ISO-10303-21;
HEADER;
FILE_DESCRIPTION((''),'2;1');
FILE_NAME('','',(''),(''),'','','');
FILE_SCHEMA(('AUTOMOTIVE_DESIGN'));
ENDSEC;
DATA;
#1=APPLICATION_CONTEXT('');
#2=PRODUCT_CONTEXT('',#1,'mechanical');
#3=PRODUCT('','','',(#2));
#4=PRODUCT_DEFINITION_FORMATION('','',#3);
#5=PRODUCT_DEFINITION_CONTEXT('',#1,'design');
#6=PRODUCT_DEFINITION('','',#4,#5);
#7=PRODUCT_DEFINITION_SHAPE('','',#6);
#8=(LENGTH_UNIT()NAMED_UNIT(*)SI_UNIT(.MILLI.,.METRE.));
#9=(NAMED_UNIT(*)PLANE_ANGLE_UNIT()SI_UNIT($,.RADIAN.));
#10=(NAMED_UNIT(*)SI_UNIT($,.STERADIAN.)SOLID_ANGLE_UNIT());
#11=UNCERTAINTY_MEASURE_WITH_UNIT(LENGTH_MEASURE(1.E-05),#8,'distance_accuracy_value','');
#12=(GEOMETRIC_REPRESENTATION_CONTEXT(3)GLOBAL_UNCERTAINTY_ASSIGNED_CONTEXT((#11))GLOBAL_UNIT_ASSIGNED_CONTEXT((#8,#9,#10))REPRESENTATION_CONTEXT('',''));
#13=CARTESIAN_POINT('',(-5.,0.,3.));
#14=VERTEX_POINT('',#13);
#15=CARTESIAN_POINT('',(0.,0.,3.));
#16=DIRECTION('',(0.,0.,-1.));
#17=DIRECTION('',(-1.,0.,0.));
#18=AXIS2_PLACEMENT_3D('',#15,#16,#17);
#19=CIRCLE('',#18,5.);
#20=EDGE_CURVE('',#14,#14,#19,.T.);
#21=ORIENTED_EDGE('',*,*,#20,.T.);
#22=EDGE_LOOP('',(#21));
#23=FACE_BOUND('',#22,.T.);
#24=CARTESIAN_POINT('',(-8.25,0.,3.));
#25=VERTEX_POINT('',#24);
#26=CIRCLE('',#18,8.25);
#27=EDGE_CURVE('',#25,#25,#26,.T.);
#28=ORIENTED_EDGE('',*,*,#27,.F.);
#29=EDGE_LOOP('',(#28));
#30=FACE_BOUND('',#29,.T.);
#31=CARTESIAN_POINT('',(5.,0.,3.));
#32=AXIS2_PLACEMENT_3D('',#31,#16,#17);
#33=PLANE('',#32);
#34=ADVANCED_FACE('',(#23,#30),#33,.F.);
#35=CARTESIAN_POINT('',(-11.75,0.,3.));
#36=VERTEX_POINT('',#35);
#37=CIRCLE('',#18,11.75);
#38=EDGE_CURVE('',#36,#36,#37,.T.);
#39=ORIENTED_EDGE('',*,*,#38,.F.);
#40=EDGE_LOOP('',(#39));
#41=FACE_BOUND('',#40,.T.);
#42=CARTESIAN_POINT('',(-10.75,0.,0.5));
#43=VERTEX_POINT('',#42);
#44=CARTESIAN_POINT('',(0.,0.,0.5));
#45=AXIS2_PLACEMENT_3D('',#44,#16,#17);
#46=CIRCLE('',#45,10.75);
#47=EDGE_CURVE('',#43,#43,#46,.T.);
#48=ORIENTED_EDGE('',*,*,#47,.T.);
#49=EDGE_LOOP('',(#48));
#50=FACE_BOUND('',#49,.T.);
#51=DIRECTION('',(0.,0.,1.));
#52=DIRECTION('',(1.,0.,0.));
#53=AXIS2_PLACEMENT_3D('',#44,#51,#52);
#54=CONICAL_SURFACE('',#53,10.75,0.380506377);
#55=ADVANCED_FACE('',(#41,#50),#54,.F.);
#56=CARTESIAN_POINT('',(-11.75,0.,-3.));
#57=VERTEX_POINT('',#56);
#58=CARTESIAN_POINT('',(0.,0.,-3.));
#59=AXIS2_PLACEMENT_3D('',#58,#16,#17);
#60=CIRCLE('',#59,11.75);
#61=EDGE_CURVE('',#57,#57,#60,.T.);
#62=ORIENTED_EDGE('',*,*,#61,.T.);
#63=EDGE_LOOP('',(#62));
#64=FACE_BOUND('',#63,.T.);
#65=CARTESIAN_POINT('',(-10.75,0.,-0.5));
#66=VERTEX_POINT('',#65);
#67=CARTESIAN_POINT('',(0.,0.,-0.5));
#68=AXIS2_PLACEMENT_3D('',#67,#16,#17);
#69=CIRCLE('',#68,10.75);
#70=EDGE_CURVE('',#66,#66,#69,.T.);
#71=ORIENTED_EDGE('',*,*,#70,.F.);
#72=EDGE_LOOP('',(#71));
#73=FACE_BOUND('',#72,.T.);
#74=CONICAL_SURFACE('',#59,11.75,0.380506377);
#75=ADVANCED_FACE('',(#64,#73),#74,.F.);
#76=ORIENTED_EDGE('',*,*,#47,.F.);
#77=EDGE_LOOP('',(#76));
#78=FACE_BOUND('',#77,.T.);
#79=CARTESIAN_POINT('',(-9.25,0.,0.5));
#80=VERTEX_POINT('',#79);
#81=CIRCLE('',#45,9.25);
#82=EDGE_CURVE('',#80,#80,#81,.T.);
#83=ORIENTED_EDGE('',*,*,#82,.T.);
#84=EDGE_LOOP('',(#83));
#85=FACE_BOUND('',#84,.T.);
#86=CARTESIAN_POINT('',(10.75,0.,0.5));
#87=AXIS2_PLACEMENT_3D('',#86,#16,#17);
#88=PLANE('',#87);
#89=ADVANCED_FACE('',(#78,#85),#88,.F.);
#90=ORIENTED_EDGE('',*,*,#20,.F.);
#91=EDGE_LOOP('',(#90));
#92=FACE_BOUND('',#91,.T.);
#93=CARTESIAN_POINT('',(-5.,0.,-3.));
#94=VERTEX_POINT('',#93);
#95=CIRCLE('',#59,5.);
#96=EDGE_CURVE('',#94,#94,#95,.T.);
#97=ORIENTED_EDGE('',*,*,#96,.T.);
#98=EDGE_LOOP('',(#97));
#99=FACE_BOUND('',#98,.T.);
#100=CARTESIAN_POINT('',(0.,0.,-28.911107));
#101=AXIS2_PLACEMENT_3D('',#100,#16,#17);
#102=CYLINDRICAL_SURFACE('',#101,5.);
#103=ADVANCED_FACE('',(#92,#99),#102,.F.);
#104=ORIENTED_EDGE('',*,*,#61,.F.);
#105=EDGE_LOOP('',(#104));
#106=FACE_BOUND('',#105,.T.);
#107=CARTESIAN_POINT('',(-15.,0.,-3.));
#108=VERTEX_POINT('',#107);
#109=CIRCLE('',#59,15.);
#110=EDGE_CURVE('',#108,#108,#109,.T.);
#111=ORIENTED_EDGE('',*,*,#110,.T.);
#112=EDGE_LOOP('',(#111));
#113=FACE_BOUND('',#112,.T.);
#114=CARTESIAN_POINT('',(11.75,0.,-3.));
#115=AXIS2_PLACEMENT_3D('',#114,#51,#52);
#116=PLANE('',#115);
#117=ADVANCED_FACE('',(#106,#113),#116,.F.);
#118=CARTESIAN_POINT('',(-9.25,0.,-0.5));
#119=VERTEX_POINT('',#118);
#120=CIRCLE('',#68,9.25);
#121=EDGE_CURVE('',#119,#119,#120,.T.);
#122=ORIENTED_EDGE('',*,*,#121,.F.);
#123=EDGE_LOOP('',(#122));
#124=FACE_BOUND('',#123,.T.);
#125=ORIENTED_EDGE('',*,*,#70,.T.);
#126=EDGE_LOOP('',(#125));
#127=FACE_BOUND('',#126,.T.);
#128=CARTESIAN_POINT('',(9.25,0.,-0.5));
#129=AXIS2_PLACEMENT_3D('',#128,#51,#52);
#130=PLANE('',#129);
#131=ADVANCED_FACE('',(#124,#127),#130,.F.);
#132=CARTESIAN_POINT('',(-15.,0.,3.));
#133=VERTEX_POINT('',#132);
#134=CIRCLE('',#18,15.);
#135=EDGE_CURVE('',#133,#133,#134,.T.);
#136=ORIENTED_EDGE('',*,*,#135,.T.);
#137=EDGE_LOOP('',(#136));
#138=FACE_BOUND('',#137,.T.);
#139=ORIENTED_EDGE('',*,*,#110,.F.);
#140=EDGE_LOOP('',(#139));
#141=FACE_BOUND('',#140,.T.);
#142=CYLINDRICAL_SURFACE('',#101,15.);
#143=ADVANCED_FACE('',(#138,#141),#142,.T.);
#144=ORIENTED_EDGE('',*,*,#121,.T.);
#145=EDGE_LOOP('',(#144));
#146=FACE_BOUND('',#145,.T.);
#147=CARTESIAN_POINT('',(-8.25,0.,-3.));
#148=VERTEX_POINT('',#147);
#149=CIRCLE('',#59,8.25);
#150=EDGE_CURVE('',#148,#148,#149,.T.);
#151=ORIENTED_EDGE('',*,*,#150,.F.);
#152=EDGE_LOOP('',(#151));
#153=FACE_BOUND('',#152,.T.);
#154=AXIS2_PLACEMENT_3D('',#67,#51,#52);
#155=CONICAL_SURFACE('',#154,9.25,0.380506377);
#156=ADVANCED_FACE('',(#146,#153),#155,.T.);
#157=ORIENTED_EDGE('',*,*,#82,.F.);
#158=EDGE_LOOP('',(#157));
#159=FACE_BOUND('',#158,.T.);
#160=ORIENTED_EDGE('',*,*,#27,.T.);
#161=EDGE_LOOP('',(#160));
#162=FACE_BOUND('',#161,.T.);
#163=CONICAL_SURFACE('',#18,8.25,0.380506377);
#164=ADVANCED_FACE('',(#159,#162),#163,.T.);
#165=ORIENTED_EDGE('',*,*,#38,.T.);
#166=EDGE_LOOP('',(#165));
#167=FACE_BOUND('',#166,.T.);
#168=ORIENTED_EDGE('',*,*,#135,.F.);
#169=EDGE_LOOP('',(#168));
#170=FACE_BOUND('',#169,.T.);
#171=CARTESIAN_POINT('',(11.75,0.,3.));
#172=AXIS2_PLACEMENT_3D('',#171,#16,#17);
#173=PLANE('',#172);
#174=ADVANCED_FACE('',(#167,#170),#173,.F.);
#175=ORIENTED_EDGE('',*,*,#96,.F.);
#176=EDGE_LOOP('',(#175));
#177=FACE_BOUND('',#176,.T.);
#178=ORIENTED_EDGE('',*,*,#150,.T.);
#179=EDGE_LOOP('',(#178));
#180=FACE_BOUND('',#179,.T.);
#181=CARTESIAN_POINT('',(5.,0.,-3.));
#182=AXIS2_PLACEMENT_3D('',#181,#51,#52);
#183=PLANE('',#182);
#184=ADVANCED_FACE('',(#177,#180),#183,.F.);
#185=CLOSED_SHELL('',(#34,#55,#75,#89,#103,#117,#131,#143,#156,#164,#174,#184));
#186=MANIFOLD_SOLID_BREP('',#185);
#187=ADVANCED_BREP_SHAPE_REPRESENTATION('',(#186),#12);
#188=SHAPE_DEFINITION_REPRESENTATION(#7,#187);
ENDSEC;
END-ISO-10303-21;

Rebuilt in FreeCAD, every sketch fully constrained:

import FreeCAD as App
import Part
import Sketcher
Q = App.Units.Quantity


def add_polygon(sketch, points):
    """Adds a closed chain of lines whose ends are joined by coincident constraints."""
    first, n = sketch.GeometryCount, len(points)
    for a, b in zip(points, points[1:] + points[:1]):
        sketch.addGeometry(Part.LineSegment(App.Vector(*a, 0), App.Vector(*b, 0)), False)
    for i in range(n):
        sketch.addConstraint(Sketcher.Constraint("Coincident", first + i, 2, first + (i + 1) % n, 1))

doc = App.newDocument("Part")
body = doc.addObject("PartDesign::Body", "Body")

# Sketch on XZ plane
sketch1 = doc.addObject("Sketcher::SketchObject", "Sketch")
body.addObject(sketch1)
sketch1.AttachmentSupport = (doc.XZ_Plane, [""])
sketch1.MapMode = "FlatFace"
add_polygon(sketch1, [(9.2, -0.5), (8.2, -3), (5, -3), (5, 3), (8.2, 3), (9.2, 0.5), (10.8, 0.5), (11.8, 3), (15, 3), (15, -3), (11.8, -3), (10.8, -0.5)])  # lines 0-11
sketch1.addConstraint([
    Sketcher.Constraint("Horizontal", 1),
    Sketcher.Constraint("Vertical", 2),
    Sketcher.Constraint("Horizontal", 3),
    Sketcher.Constraint("Horizontal", 5),
    Sketcher.Constraint("Horizontal", 7),
    Sketcher.Constraint("Vertical", 8),
    Sketcher.Constraint("Horizontal", 9),
    Sketcher.Constraint("Horizontal", 11),
    Sketcher.Constraint("Symmetric", 0, 2, 3, 2, -1),
    Sketcher.Constraint("Symmetric", 6, 2, 9, 2, -1),
    Sketcher.Constraint("Symmetric", 5, 2, 10, 2, -1),
    Sketcher.Constraint("Parallel", 0, 6),
    Sketcher.Constraint("Parallel", 4, 10),
    Sketcher.Constraint("Horizontal", 3, 2, 6, 2),
    Sketcher.Constraint("Equal", 3, 7),
    Sketcher.Constraint("DistanceY", 2, 1, 2, 2, Q("6 mm")),
    Sketcher.Constraint("DistanceX", 5, 1, 5, 2, Q("1.5 mm")),
    Sketcher.Constraint("DistanceX", -1, 1, 1, 2, Q("5 mm")),
    Sketcher.Constraint("DistanceX", -1, 1, 7, 2, Q("15 mm")),
    Sketcher.Constraint("DistanceX", 3, 2, 4, 2, Q("1 mm")),
    Sketcher.Constraint("DistanceY", 10, 2, 5, 2, Q("1 mm")),
])
revolution = doc.addObject("PartDesign::Revolution", "Revolution")
body.addObject(revolution)
revolution.Profile = sketch1
revolution.ReferenceAxis = (sketch1, ["V_Axis"])
revolution.Angle = 360

doc.recompute()
